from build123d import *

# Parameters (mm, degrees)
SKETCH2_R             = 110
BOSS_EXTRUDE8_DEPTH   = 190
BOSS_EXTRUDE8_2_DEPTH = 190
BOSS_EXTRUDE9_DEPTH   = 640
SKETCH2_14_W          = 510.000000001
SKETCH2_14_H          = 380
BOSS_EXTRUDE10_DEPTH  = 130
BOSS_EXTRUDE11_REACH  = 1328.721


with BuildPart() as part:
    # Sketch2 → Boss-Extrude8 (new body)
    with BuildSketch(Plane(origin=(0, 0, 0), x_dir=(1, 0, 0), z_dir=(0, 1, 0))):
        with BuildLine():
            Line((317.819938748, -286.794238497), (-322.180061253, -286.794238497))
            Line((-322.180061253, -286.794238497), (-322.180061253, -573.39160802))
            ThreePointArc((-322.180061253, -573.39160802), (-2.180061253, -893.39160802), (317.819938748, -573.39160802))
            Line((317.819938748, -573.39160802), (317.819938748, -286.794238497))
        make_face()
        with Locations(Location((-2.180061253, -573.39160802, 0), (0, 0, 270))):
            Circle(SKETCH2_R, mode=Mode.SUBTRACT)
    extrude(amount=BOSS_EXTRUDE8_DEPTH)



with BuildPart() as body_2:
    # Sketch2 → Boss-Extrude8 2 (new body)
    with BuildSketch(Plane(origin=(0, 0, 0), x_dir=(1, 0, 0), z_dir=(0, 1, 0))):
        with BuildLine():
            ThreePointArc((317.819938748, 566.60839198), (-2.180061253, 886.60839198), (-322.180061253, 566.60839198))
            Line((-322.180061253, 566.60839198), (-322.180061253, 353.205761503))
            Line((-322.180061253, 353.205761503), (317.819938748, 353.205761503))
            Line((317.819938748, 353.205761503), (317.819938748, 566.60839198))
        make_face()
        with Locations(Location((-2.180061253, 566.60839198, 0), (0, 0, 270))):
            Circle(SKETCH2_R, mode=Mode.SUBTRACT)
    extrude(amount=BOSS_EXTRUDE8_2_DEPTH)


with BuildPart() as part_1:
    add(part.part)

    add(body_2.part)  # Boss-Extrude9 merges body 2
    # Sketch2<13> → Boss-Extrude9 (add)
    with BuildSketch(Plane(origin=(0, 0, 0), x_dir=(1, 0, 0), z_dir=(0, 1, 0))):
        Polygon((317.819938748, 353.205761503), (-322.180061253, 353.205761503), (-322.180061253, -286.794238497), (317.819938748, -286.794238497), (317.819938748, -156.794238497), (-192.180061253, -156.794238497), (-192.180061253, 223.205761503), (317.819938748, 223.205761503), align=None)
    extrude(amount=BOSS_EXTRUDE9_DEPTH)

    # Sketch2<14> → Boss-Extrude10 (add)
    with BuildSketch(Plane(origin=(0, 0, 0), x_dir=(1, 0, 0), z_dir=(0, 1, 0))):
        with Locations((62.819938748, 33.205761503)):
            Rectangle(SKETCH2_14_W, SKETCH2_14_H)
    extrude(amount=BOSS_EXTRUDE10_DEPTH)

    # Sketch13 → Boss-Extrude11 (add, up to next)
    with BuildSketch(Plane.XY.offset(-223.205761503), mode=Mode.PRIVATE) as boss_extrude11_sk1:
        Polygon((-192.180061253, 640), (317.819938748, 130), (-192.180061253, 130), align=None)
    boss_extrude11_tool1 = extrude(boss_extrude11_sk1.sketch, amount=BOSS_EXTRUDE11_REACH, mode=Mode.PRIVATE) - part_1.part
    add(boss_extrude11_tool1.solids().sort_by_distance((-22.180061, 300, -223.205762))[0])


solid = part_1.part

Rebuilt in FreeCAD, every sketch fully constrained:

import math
import FreeCAD as App
import Part
import Sketcher

V = App.Vector


def add_polygon(sketch, points):
    """Adds a closed chain of lines whose ends are joined by coincident constraints."""
    first, n = sketch.GeometryCount, len(points)
    for a, b in zip(points, points[1:] + points[:1]):
        sketch.addGeometry(Part.LineSegment(App.Vector(*a, 0), App.Vector(*b, 0)), False)
    for i in range(n):
        sketch.addConstraint(Sketcher.Constraint("Coincident", first + i, 2, first + (i + 1) % n, 1))

doc = App.newDocument("Part")
body = doc.addObject("PartDesign::Body", "Body")

# Sketch on XZ plane
sketch1 = body.newObject("Sketcher::SketchObject", "Sketch")
sketch1.AttachmentSupport = (doc.getObject("XZ_Plane"), [""])
sketch1.MapMode = "FlatFace"
sketch1.addGeometry(Part.LineSegment(V(318, 287, 0), V(-322, 287, 0)), False)
sketch1.addGeometry(Part.LineSegment(V(-322, 287, 0), V(-322, 573, 0)), False)
sketch1.addGeometry(Part.ArcOfCircle(Part.Circle(V(-2, 573, 0), V(0, 0, 1), 320), math.radians(0), math.radians(180)), False)
sketch1.addGeometry(Part.LineSegment(V(318, 573, 0), V(318, 287, 0)), False)
sketch1.addGeometry(Part.Circle(V(-2, 573, 0), V(0, 0, 1), 110), False)
sketch1.addConstraint(Sketcher.Constraint("Coincident", 0, 2, 1, 1))
sketch1.addConstraint(Sketcher.Constraint("Tangent", 1, 2, 2, 2))
sketch1.addConstraint(Sketcher.Constraint("Tangent", 2, 1, 3, 1))
sketch1.addConstraint(Sketcher.Constraint("Coincident", 3, 2, 0, 1))
sketch1.addConstraint(Sketcher.Constraint("Horizontal", 0))
sketch1.addConstraint(Sketcher.Constraint("Vertical", 1))
sketch1.addConstraint(Sketcher.Constraint("Vertical", 3))
sketch1.addConstraint(Sketcher.Constraint("Coincident", 4, 3, 2, 3))
sketch1.addConstraint(Sketcher.Constraint("Diameter", 4, 220.0))
sketch1.addConstraint(Sketcher.Constraint("Radius", 2, 320.0))
sketch1.addConstraint(Sketcher.Constraint("DistanceY", 1, 1, 1, 2, 286.59737))
sketch1.addConstraint(Sketcher.Constraint("DistanceX", 2, 3, -1, 1, 2.180061))
sketch1.addConstraint(Sketcher.Constraint("DistanceY", -1, 1, 2, 3, 573.391608))
pad1 = body.newObject("PartDesign::Pad", "Pad")
pad1.Profile = sketch1
pad1.Length = 190
pad1.Reversed = True
body2 = doc.addObject("PartDesign::Body", "Body001")

# Sketch on XZ plane
sketch2 = body2.newObject("Sketcher::SketchObject", "Sketch001")
sketch2.AttachmentSupport = (doc.getObject("XZ_Plane001"), [""])
sketch2.MapMode = "FlatFace"
sketch2.addGeometry(Part.ArcOfCircle(Part.Circle(V(-2, -567, 0), V(0, 0, 1), 320), math.radians(-180), math.radians(0)), False)
sketch2.addGeometry(Part.LineSegment(V(-322, -567, 0), V(-322, -353, 0)), False)
sketch2.addGeometry(Part.LineSegment(V(-322, -353, 0), V(318, -353, 0)), False)
sketch2.addGeometry(Part.LineSegment(V(318, -353, 0), V(318, -567, 0)), False)
sketch2.addGeometry(Part.Circle(V(-2, -567, 0), V(0, 0, 1), 110), False)
sketch2.addConstraint(Sketcher.Constraint("Tangent", 0, 1, 1, 1))
sketch2.addConstraint(Sketcher.Constraint("Coincident", 1, 2, 2, 1))
sketch2.addConstraint(Sketcher.Constraint("Coincident", 2, 2, 3, 1))
sketch2.addConstraint(Sketcher.Constraint("Tangent", 3, 2, 0, 2))
sketch2.addConstraint(Sketcher.Constraint("Vertical", 1))
sketch2.addConstraint(Sketcher.Constraint("Horizontal", 2))
sketch2.addConstraint(Sketcher.Constraint("Vertical", 3))
sketch2.addConstraint(Sketcher.Constraint("Coincident", 4, 3, 0, 3))
sketch2.addConstraint(Sketcher.Constraint("Diameter", 4, 220.0))
sketch2.addConstraint(Sketcher.Constraint("Radius", 0, 320.0))
sketch2.addConstraint(Sketcher.Constraint("DistanceY", 1, 1, 1, 2, 213.40263))
sketch2.addConstraint(Sketcher.Constraint("DistanceX", 0, 3, -1, 1, 2.180061))
sketch2.addConstraint(Sketcher.Constraint("DistanceY", 0, 3, -1, 1, 566.608392))
pad2 = body2.newObject("PartDesign::Pad", "Pad001")
pad2.Profile = sketch2
pad2.Length = 190
pad2.Reversed = True
body.AllowCompound = True
doc.recompute()

boolean = body.newObject("PartDesign::Boolean", "Boolean")
boolean.Type = "Fuse"
boolean.addObjects([body2])

# Sketch on XZ plane
sketch3 = body.newObject("Sketcher::SketchObject", "Sketch002")
sketch3.AttachmentSupport = (doc.getObject("XZ_Plane"), [""])
sketch3.MapMode = "FlatFace"
add_polygon(sketch3, [(318, -353), (-322, -353), (-322, 287), (318, 287), (318, 157), (-192, 157), (-192, -223), (318, -223)])  # lines 0-7
sketch3.addConstraint(Sketcher.Constraint("Horizontal", 0))
sketch3.addConstraint(Sketcher.Constraint("Vertical", 1))
sketch3.addConstraint(Sketcher.Constraint("Horizontal", 2))
sketch3.addConstraint(Sketcher.Constraint("Vertical", 3))
sketch3.addConstraint(Sketcher.Constraint("Horizontal", 4))
sketch3.addConstraint(Sketcher.Constraint("Vertical", 5))
sketch3.addConstraint(Sketcher.Constraint("Horizontal", 6))
sketch3.addConstraint(Sketcher.Constraint("Vertical", 7))
sketch3.addConstraint(Sketcher.Constraint("Vertical", 3, 2, 6, 2))
sketch3.addConstraint(Sketcher.Constraint("Equal", 2, 1))
sketch3.addConstraint(Sketcher.Constraint("Equal", 3, 7))
sketch3.addConstraint(Sketcher.Constraint("DistanceX", 0, 2, 0, 1, 640.0))
sketch3.addConstraint(Sketcher.Constraint("DistanceX", 4, 2, 4, 1, 510.0))
sketch3.addConstraint(Sketcher.Constraint("DistanceY", 3, 2, 3, 1, 130.0))
sketch3.addConstraint(Sketcher.Constraint("DistanceX", 0, 2, -1, 1, 322.180061))
sketch3.addConstraint(Sketcher.Constraint("DistanceY", 0, 2, -1, 1, 353.205762))
pad3 = body.newObject("PartDesign::Pad", "Pad002")
pad3.Profile = sketch3
pad3.Length = 640
pad3.Reversed = True

# Sketch on XZ plane
sketch4 = body.newObject("Sketcher::SketchObject", "Sketch003")
sketch4.AttachmentSupport = (doc.getObject("XZ_Plane"), [""])
sketch4.MapMode = "FlatFace"
add_polygon(sketch4, [(-192, -223), (-192, 157), (318, 157), (318, -223)])  # lines 0-3
sketch4.addConstraint(Sketcher.Constraint("Vertical", 0))
sketch4.addConstraint(Sketcher.Constraint("Horizontal", 1))
sketch4.addConstraint(Sketcher.Constraint("Vertical", 2))
sketch4.addConstraint(Sketcher.Constraint("Horizontal", 3))
sketch4.addConstraint(Sketcher.Constraint("DistanceX", 1, 1, 1, 2, 510.0))
sketch4.addConstraint(Sketcher.Constraint("DistanceY", 0, 1, 0, 2, 380.0))
sketch4.addConstraint(Sketcher.Constraint("DistanceX", 0, 2, -1, 1, 192.180061))
sketch4.addConstraint(Sketcher.Constraint("DistanceY", -1, 1, 0, 2, 156.794238))
pad4 = body.newObject("PartDesign::Pad", "Pad003")
pad4.Profile = sketch4
pad4.Length = 130
pad4.Reversed = True

# Sketch on XY plane
sketch5 = body.newObject("Sketcher::SketchObject", "Sketch004")
sketch5.AttachmentSupport = (doc.getObject("XY_Plane"), [""])
sketch5.MapMode = "FlatFace"
sketch5.AttachmentOffset = App.Placement(V(0, 0, -223.205762), App.Rotation())
add_polygon(sketch5, [(318, 130), (-192, 640), (-192, 130)])  # lines 0-2
sketch5.addConstraint(Sketcher.Constraint("Vertical", 1))
sketch5.addConstraint(Sketcher.Constraint("Horizontal", 2))
sketch5.addConstraint(Sketcher.Constraint("Equal", 2, 1))
sketch5.addConstraint(Sketcher.Constraint("DistanceX", 2, 1, 2, 2, 510.0))
sketch5.addConstraint(Sketcher.Constraint("DistanceY", -1, 1, 0, 2, 640.0))
sketch5.addConstraint(Sketcher.Constraint("DistanceX", 0, 2, -1, 1, 192.180061))
pad5 = body.newObject("PartDesign::Pad", "Pad004")
pad5.Profile = sketch5
pad5.Type = "UpToFirst"

doc.recompute()
